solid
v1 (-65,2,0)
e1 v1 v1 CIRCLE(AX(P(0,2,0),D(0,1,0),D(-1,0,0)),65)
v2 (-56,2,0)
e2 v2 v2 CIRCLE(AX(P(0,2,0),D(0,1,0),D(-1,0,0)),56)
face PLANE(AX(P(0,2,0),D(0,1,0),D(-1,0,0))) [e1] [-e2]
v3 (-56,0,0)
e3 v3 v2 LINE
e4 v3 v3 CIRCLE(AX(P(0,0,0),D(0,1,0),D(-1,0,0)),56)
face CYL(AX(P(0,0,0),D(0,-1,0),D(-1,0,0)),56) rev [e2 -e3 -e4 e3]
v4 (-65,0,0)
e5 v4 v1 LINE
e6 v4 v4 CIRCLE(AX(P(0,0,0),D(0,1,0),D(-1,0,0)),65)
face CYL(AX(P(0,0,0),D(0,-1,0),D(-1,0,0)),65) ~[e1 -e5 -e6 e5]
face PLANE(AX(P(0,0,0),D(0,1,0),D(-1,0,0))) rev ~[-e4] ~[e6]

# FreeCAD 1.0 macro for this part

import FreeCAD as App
import Part
import Sketcher

V = App.Vector
Q = App.Units.Quantity

doc = App.newDocument("Part")
body = doc.addObject("PartDesign::Body", "Body")

sketch1 = body.newObject("Sketcher::SketchObject", "Sketch")
sketch1.AttachmentSupport = (doc.getObject("XZ_Plane"), [""])
sketch1.MapMode = "FlatFace"
sketch1.addGeometry(Part.Circle(V(0, 0, 0), V(0, 0, 1), 65), False)
sketch1.addGeometry(Part.Circle(V(0, 0, 0), V(0, 0, 1), 56), False)
sketch1.addConstraint(Sketcher.Constraint("Coincident", 0, 3, -1, 1))
sketch1.addConstraint(Sketcher.Constraint("Coincident", 1, 3, -1, 1))
sketch1.addConstraint(Sketcher.Constraint("Diameter", 0, Q("130 mm")))
sketch1.addConstraint(Sketcher.Constraint("Diameter", 1, Q("112 mm")))
pad1 = body.newObject("PartDesign::Pad", "Pad")
pad1.Profile = sketch1
pad1.Length = 2
pad1.Reversed = True

doc.recompute()
